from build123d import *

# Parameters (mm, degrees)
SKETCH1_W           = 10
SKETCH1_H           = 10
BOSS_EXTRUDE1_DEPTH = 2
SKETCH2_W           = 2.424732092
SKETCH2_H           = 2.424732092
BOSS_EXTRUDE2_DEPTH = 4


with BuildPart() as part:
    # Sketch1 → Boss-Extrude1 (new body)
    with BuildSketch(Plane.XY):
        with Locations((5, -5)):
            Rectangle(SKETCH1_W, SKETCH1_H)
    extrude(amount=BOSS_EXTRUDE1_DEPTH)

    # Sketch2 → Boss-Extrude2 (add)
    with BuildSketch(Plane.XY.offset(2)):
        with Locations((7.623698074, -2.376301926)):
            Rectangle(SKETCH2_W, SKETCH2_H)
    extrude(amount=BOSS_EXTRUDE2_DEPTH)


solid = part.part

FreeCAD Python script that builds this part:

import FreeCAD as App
import Part
import Sketcher
from FreeCAD import Vector
Q = App.Units.Quantity


def add_polygon(sketch, points):
    """Adds a closed chain of lines whose ends are joined by coincident constraints."""
    first, n = sketch.GeometryCount, len(points)
    for a, b in zip(points, points[1:] + points[:1]):
        sketch.addGeometry(Part.LineSegment(App.Vector(*a, 0), App.Vector(*b, 0)), False)
    for i in range(n):
        sketch.addConstraint(Sketcher.Constraint("Coincident", first + i, 2, first + (i + 1) % n, 1))

doc = App.newDocument("Part")
params = doc.addObject("Spreadsheet::Sheet", "Params")
for row, (alias, value) in enumerate([
    ("sketch1_width", "10 mm"),
    ("pad1_length", "2 mm"),
    ("pad2_length", "4 mm"),
], start=1):
    params.set(f"A{row}", alias)
    params.set(f"B{row}", "=" + value)
    params.setAlias(f"B{row}", alias)

body = doc.addObject("PartDesign::Body", "Body")

# Sketch on XY plane
sketch1 = body.newObject("Sketcher::SketchObject", "Sketch")
sketch1.AttachmentSupport = (doc.getObject("XY_Plane"), [""])
sketch1.MapMode = "FlatFace"
add_polygon(sketch1, [(0, 0), (0, -10), (10, -10), (10, 0)])  # lines 0-3
sketch1.addConstraint(Sketcher.Constraint("Vertical", 0))
sketch1.addConstraint(Sketcher.Constraint("Horizontal", 1))
sketch1.addConstraint(Sketcher.Constraint("Vertical", 2))
sketch1.addConstraint(Sketcher.Constraint("Horizontal", 3))
sketch1.addConstraint(Sketcher.Constraint("Coincident", 3, 2, -1, 1))
sketch1.addConstraint(Sketcher.Constraint("Equal", 3, 0))
sketch1.addConstraint(Sketcher.Constraint("DistanceX", 1, 1, 1, 2, Q("10 mm")))
sketch1.setExpression("Constraints[10]", "Params.sketch1_width")
pad1 = body.newObject("PartDesign::Pad", "Pad")
pad1.Profile = sketch1
pad1.setExpression("Length", "Params.pad1_length")

# Sketch on XY plane
sketch2 = body.newObject("Sketcher::SketchObject", "Sketch001")
sketch2.AttachmentSupport = (doc.getObject("XY_Plane"), [""])
sketch2.MapMode = "FlatFace"
sketch2.AttachmentOffset = App.Placement(Vector(0, 0, 2), App.Rotation())
add_polygon(sketch2, [(6.411332, -1.163936), (6.411332, -3.588668), (8.836064, -3.588668), (8.836064, -1.163936)])  # lines 0-3
sketch2.addConstraint(Sketcher.Constraint("Vertical", 0))
sketch2.addConstraint(Sketcher.Constraint("Horizontal", 1))
sketch2.addConstraint(Sketcher.Constraint("Vertical", 2))
sketch2.addConstraint(Sketcher.Constraint("Horizontal", 3))
sketch2.addConstraint(Sketcher.Constraint("Equal", 3, 0))
sketch2.addConstraint(Sketcher.Constraint("DistanceX", 1, 1, 1, 2, Q("2.424732 mm")))
sketch2.addConstraint(Sketcher.Constraint("DistanceX", -1, 1, 0, 2, Q("6.411332 mm")))
sketch2.addConstraint(Sketcher.Constraint("DistanceY", 0, 2, -1, 1, Q("3.588668 mm")))
pad2 = body.newObject("PartDesign::Pad", "Pad001")
pad2.Profile = sketch2
pad2.setExpression("Length", "Params.pad2_length")

doc.recompute()
